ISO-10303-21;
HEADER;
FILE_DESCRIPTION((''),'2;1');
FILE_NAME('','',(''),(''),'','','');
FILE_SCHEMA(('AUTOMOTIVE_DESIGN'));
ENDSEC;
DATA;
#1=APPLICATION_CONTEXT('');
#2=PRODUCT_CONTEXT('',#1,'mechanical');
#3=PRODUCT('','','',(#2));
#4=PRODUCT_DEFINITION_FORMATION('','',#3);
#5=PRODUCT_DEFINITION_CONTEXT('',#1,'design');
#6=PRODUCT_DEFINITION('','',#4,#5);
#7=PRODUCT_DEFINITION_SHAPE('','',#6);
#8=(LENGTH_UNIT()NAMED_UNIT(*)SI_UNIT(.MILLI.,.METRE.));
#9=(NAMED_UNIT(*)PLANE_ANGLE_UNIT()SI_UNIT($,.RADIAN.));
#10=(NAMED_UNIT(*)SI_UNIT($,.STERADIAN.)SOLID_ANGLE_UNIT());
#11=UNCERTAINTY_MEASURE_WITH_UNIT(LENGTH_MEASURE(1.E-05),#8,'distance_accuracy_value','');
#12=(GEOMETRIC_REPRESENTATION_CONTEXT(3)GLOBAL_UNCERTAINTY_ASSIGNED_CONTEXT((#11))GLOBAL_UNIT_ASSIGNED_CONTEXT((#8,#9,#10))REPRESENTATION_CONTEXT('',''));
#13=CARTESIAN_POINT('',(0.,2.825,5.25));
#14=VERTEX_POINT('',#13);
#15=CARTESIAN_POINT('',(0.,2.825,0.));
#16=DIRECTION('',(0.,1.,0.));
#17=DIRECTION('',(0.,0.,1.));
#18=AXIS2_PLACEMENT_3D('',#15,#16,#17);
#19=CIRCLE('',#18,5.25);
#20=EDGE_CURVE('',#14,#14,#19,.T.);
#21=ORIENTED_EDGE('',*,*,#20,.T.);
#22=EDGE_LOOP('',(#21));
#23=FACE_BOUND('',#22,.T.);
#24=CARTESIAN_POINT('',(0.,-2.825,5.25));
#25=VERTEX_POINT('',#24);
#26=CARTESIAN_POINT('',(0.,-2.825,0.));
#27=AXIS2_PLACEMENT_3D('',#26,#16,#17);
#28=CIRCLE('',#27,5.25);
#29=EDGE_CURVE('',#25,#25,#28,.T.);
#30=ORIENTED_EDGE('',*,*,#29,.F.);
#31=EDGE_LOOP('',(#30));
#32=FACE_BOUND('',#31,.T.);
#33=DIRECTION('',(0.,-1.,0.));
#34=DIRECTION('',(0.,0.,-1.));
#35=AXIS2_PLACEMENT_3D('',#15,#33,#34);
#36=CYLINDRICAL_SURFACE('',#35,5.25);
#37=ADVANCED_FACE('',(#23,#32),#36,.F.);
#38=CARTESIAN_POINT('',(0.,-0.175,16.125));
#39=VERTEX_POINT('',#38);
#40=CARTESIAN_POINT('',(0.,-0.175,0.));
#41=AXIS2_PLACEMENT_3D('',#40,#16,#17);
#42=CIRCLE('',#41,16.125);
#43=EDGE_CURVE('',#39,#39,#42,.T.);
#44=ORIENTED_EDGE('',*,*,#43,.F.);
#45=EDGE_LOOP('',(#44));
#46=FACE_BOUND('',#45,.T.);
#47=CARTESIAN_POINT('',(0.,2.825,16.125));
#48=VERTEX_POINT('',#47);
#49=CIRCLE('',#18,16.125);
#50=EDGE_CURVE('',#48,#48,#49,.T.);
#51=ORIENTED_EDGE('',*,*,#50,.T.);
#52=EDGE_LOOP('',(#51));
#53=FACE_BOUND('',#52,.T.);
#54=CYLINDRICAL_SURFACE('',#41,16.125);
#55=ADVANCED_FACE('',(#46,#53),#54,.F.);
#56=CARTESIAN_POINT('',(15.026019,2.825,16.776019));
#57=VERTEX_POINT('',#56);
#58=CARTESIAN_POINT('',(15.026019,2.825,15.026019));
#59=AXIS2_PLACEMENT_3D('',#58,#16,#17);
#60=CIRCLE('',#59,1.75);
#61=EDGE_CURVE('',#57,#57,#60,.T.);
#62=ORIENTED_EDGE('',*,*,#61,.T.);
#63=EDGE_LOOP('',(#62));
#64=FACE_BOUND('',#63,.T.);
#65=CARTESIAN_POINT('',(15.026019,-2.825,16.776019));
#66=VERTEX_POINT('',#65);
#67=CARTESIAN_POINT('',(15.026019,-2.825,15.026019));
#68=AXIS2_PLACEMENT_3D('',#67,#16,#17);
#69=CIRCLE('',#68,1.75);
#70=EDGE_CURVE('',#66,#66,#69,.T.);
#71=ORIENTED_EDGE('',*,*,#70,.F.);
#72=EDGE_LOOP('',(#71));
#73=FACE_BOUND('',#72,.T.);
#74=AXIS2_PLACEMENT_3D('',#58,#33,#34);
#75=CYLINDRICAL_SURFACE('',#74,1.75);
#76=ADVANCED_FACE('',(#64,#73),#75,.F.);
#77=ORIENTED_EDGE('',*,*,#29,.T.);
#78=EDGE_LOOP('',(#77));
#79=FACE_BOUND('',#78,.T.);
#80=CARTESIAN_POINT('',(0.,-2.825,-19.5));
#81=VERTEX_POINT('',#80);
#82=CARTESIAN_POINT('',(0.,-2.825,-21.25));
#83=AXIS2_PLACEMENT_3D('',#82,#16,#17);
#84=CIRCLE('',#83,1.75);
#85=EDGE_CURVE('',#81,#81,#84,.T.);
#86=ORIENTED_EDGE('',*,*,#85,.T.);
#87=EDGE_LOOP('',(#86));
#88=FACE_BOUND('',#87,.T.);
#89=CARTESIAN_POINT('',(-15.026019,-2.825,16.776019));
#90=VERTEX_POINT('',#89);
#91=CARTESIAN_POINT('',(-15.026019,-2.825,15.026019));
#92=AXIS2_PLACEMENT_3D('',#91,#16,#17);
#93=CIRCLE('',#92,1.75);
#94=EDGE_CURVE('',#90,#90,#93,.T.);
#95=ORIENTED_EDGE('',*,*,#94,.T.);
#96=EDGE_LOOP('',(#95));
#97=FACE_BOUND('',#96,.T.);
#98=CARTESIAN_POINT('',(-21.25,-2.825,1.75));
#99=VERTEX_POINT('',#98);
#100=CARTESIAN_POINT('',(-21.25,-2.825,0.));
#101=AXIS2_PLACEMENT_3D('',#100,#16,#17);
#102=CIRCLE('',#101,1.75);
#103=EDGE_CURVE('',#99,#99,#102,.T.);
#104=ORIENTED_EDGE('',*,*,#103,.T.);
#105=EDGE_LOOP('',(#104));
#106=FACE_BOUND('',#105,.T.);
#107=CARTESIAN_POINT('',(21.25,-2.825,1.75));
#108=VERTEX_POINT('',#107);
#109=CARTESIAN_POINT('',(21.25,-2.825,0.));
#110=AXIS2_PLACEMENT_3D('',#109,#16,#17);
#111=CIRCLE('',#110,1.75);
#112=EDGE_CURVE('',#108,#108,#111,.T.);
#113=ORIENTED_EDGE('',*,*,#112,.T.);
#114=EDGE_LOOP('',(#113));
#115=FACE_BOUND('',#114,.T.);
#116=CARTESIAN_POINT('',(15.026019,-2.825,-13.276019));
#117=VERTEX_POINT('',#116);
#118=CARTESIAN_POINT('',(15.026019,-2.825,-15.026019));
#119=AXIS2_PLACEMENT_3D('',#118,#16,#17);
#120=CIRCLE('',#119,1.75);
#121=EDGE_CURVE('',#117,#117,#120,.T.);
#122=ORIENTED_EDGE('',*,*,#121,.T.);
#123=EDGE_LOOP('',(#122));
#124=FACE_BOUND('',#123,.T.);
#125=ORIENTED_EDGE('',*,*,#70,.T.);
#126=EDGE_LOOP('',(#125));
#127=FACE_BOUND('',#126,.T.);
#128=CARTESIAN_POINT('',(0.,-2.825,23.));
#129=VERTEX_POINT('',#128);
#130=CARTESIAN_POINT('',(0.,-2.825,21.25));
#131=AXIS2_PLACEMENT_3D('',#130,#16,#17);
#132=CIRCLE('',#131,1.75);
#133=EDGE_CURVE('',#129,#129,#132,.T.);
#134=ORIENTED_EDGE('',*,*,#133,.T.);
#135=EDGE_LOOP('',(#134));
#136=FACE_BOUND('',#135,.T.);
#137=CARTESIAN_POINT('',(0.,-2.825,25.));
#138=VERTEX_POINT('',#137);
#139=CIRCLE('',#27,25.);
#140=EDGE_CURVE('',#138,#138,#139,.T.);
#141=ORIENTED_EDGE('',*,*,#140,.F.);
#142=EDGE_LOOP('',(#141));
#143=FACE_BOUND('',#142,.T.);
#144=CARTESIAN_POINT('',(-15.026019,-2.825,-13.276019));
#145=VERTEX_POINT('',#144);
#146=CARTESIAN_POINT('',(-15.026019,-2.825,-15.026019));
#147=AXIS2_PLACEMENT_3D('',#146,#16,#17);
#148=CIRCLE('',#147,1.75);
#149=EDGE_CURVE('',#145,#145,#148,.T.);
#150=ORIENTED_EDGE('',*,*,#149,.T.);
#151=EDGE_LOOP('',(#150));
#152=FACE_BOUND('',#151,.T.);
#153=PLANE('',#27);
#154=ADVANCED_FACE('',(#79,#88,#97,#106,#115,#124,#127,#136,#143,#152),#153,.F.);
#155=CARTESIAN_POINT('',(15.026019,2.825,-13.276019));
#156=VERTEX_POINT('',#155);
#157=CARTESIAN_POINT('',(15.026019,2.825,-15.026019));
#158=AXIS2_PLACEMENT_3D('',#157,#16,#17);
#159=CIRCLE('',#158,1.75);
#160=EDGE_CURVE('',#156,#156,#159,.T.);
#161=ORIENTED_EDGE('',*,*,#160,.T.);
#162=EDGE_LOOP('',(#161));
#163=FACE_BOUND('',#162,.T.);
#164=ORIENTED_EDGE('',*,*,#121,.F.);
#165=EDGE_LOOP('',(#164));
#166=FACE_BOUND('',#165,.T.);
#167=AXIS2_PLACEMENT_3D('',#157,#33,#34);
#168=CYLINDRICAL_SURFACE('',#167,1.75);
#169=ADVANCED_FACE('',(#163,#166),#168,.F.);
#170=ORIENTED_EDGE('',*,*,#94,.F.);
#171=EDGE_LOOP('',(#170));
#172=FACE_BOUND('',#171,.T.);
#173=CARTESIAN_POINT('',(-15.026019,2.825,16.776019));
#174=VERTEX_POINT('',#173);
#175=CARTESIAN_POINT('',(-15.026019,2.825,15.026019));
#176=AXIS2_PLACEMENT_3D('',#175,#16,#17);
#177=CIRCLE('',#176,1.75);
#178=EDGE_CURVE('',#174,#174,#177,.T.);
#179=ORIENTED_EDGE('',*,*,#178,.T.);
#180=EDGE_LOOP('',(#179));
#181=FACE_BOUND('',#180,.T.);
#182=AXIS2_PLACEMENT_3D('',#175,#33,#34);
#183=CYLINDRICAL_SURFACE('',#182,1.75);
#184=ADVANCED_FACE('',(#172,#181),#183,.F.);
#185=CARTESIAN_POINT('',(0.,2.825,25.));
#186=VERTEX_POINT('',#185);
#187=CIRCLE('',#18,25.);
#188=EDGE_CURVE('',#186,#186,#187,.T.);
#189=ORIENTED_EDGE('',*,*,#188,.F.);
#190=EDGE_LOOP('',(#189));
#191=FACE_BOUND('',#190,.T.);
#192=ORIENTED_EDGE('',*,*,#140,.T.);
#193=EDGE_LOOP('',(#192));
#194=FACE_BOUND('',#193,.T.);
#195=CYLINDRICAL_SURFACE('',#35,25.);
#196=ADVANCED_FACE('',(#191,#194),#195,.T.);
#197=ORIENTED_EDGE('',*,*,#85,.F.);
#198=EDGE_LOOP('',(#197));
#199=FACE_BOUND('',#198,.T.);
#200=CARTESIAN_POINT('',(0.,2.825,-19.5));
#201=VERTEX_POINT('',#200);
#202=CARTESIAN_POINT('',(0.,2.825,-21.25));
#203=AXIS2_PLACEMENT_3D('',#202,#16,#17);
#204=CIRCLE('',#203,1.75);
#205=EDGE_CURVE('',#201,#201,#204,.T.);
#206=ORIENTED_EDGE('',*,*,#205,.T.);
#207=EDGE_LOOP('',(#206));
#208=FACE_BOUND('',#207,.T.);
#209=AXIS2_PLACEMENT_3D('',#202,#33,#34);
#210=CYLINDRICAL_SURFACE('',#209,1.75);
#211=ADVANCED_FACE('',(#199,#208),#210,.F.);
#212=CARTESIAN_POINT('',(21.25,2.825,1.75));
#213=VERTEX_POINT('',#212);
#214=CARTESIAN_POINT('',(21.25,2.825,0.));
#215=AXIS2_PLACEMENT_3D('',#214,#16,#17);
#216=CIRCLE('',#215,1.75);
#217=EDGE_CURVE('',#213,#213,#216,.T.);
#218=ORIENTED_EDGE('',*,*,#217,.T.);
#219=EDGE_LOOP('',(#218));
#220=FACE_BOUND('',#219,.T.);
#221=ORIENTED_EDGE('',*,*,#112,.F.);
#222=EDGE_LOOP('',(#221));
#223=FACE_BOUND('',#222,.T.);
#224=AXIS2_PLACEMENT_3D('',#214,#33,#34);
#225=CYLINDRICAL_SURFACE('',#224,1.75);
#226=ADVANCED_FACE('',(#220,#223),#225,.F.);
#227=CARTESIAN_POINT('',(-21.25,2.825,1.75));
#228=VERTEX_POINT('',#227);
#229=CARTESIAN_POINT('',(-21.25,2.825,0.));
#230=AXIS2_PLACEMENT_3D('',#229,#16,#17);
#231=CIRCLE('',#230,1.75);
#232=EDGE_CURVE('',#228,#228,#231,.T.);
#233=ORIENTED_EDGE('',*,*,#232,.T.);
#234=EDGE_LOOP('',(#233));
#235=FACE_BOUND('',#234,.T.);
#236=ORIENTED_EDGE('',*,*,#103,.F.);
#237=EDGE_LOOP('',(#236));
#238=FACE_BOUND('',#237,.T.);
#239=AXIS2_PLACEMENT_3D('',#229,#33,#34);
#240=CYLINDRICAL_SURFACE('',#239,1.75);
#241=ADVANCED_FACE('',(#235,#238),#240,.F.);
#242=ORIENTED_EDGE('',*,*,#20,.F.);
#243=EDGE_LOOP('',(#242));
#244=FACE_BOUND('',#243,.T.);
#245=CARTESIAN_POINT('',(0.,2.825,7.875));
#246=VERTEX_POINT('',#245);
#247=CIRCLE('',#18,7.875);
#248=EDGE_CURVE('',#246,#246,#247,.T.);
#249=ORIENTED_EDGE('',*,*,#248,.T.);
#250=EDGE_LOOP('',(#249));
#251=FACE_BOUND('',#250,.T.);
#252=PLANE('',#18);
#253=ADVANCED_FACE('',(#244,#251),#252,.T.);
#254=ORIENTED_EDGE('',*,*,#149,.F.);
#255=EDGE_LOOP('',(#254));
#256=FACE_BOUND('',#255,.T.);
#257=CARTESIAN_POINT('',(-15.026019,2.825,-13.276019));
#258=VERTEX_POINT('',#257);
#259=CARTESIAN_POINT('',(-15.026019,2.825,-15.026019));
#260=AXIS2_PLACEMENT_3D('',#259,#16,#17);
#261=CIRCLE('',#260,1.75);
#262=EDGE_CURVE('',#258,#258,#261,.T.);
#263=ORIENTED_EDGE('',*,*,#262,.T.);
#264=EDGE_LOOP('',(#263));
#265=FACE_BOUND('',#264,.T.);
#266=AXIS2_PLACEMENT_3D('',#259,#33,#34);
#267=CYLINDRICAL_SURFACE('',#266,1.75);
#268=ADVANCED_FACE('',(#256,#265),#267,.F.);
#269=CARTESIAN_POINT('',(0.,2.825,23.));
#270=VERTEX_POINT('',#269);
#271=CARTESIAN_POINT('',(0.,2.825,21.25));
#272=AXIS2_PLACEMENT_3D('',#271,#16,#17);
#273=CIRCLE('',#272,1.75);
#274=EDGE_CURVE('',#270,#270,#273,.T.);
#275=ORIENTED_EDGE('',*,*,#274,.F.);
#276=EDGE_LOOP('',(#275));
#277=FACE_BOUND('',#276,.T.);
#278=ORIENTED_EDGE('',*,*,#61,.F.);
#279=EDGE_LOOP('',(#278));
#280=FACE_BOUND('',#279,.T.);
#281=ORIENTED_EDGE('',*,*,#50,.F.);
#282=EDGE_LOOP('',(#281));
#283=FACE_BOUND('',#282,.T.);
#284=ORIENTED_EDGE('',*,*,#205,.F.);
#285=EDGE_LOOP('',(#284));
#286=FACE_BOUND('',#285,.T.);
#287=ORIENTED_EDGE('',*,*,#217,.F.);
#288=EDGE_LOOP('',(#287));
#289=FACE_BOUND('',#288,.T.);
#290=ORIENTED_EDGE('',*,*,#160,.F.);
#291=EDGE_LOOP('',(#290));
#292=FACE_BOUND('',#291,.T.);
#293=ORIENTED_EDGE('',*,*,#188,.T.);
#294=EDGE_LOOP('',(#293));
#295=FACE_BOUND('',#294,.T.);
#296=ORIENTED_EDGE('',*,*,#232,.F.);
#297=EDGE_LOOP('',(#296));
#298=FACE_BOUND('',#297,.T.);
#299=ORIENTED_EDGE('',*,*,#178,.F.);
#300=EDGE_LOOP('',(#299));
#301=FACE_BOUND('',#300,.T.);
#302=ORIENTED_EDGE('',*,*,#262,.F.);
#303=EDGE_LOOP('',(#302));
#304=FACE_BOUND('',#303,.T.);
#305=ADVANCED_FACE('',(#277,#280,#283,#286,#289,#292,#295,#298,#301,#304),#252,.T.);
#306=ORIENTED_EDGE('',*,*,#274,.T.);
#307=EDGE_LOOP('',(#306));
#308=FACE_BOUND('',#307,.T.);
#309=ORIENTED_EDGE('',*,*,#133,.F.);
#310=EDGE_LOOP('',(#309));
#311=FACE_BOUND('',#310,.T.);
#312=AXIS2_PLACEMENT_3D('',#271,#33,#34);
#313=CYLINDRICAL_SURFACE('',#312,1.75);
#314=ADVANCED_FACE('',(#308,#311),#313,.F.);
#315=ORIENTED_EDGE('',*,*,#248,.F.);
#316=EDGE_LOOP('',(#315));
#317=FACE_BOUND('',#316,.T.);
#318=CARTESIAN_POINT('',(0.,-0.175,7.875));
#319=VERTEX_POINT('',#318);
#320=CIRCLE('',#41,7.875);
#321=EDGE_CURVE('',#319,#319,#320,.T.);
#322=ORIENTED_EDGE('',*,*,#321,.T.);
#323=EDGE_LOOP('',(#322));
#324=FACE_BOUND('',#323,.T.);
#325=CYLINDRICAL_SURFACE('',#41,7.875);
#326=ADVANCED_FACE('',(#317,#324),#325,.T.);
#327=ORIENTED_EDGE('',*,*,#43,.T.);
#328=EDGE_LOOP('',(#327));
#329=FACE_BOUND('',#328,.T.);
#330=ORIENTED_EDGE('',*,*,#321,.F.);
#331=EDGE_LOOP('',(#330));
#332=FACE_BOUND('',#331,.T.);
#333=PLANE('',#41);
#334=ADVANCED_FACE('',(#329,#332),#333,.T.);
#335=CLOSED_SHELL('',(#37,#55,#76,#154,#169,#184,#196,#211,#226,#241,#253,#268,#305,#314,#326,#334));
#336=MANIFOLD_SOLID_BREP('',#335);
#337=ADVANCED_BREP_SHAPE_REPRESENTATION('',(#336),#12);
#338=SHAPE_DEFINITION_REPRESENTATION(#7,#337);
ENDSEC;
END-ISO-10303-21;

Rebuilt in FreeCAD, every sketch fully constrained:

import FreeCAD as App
import Part
import Sketcher

doc = App.newDocument("Part")
body = doc.addObject("PartDesign::Body", "Body")

# Sketch on XZ plane
sketch1 = body.newObject("Sketcher::SketchObject", "Sketch")
sketch1.AttachmentSupport = (doc.getObject("XZ_Plane"), [""])
sketch1.MapMode = "FlatFace"
sketch1.addGeometry(Part.Circle(App.Vector(0, 0, 0), App.Vector(0, 0, 1), 25), False)
sketch1.addGeometry(Part.Circle(App.Vector(-15, -15, 0), App.Vector(0, 0, 1), 1.8), False)
sketch1.addGeometry(Part.Circle(App.Vector(0, -21.2, 0), App.Vector(0, 0, 1), 1.8), False)
sketch1.addGeometry(Part.Circle(App.Vector(-21.2, 0, 0), App.Vector(0, 0, 1), 1.8), False)
sketch1.addGeometry(Part.Circle(App.Vector(-15, 15, 0), App.Vector(0, 0, 1), 1.8), False)
sketch1.addGeometry(Part.Circle(App.Vector(15, -15, 0), App.Vector(0, 0, 1), 1.8), False)
sketch1.addGeometry(Part.Circle(App.Vector(21.2, 0, 0), App.Vector(0, 0, 1), 1.8), False)
sketch1.addGeometry(Part.Circle(App.Vector(0, 0, 0), App.Vector(0, 0, 1), 5.2), False)
sketch1.addGeometry(Part.Circle(App.Vector(0, 21.2, 0), App.Vector(0, 0, 1), 1.8), False)
sketch1.addGeometry(Part.Circle(App.Vector(15, 15, 0), App.Vector(0, 0, 1), 1.8), False)
sketch1.addConstraint(Sketcher.Constraint("Coincident", 0, 3, -1, 1))
sketch1.addConstraint(Sketcher.Constraint("Coincident", 7, 3, -1, 1))
sketch1.addConstraint(Sketcher.Constraint("Equal", 1, 2))
sketch1.addConstraint(Sketcher.Constraint("Equal", 2, 3))
sketch1.addConstraint(Sketcher.Constraint("Equal", 3, 4))
sketch1.addConstraint(Sketcher.Constraint("Equal", 4, 5))
sketch1.addConstraint(Sketcher.Constraint("Equal", 5, 6))
sketch1.addConstraint(Sketcher.Constraint("Equal", 6, 8))
sketch1.addConstraint(Sketcher.Constraint("Equal", 8, 9))
sketch1.addConstraint(Sketcher.Constraint("Symmetric", 4, 3, 5, 3, -1, 1))
sketch1.addConstraint(Sketcher.Constraint("Symmetric", 3, 3, 6, 3, -1, 1))
sketch1.addConstraint(Sketcher.Constraint("Symmetric", 2, 3, 8, 3, -1, 1))
sketch1.addConstraint(Sketcher.Constraint("Symmetric", 1, 3, 9, 3, -1, 1))
sketch1.addConstraint(Sketcher.Constraint("Symmetric", 1, 3, 5, 3, -2))
sketch1.addConstraint(Sketcher.Constraint("PointOnObject", 2, 3, -2))
sketch1.addConstraint(Sketcher.Constraint("PointOnObject", 3, 3, -1))
sketch1.addConstraint(Sketcher.Constraint("Diameter", 0, 50.0))
sketch1.addConstraint(Sketcher.Constraint("Diameter", 1, 3.5))
sketch1.addConstraint(Sketcher.Constraint("Diameter", 7, 10.5))
sketch1.addConstraint(Sketcher.Constraint("DistanceY", 2, 3, -1, 1, 21.25))
sketch1.addConstraint(Sketcher.Constraint("DistanceX", 3, 3, -1, 1, 21.25))
sketch1.addConstraint(Sketcher.Constraint("DistanceX", 1, 3, -1, 1, 15.026019))
sketch1.addConstraint(Sketcher.Constraint("DistanceY", 1, 3, -1, 1, 15.026019))
pad1 = body.newObject("PartDesign::Pad", "Pad")
pad1.Profile = sketch1
pad1.Length = 5.65
pad1.Midplane = True

# Sketch on XZ plane
sketch2 = body.newObject("Sketcher::SketchObject", "Sketch001")
sketch2.AttachmentSupport = (doc.getObject("XZ_Plane"), [""])
sketch2.MapMode = "FlatFace"
sketch2.AttachmentOffset = App.Placement(App.Vector(0, 0, -2.825), App.Rotation())
sketch2.addGeometry(Part.Circle(App.Vector(0, 0, 0), App.Vector(0, 0, 1), 16), False)
sketch2.addGeometry(Part.Circle(App.Vector(0, 0, 0), App.Vector(0, 0, 1), 8), False)
sketch2.addConstraint(Sketcher.Constraint("Coincident", 0, 3, -1, 1))
sketch2.addConstraint(Sketcher.Constraint("Coincident", 1, 3, -1, 1))
sketch2.addConstraint(Sketcher.Constraint("Diameter", 0, 32.25))
sketch2.addConstraint(Sketcher.Constraint("Diameter", 1, 15.75))
pocket1 = body.newObject("PartDesign::Pocket", "Pocket")
pocket1.Profile = sketch2
pocket1.Length = 3
pocket1.Reversed = True

doc.recompute()
